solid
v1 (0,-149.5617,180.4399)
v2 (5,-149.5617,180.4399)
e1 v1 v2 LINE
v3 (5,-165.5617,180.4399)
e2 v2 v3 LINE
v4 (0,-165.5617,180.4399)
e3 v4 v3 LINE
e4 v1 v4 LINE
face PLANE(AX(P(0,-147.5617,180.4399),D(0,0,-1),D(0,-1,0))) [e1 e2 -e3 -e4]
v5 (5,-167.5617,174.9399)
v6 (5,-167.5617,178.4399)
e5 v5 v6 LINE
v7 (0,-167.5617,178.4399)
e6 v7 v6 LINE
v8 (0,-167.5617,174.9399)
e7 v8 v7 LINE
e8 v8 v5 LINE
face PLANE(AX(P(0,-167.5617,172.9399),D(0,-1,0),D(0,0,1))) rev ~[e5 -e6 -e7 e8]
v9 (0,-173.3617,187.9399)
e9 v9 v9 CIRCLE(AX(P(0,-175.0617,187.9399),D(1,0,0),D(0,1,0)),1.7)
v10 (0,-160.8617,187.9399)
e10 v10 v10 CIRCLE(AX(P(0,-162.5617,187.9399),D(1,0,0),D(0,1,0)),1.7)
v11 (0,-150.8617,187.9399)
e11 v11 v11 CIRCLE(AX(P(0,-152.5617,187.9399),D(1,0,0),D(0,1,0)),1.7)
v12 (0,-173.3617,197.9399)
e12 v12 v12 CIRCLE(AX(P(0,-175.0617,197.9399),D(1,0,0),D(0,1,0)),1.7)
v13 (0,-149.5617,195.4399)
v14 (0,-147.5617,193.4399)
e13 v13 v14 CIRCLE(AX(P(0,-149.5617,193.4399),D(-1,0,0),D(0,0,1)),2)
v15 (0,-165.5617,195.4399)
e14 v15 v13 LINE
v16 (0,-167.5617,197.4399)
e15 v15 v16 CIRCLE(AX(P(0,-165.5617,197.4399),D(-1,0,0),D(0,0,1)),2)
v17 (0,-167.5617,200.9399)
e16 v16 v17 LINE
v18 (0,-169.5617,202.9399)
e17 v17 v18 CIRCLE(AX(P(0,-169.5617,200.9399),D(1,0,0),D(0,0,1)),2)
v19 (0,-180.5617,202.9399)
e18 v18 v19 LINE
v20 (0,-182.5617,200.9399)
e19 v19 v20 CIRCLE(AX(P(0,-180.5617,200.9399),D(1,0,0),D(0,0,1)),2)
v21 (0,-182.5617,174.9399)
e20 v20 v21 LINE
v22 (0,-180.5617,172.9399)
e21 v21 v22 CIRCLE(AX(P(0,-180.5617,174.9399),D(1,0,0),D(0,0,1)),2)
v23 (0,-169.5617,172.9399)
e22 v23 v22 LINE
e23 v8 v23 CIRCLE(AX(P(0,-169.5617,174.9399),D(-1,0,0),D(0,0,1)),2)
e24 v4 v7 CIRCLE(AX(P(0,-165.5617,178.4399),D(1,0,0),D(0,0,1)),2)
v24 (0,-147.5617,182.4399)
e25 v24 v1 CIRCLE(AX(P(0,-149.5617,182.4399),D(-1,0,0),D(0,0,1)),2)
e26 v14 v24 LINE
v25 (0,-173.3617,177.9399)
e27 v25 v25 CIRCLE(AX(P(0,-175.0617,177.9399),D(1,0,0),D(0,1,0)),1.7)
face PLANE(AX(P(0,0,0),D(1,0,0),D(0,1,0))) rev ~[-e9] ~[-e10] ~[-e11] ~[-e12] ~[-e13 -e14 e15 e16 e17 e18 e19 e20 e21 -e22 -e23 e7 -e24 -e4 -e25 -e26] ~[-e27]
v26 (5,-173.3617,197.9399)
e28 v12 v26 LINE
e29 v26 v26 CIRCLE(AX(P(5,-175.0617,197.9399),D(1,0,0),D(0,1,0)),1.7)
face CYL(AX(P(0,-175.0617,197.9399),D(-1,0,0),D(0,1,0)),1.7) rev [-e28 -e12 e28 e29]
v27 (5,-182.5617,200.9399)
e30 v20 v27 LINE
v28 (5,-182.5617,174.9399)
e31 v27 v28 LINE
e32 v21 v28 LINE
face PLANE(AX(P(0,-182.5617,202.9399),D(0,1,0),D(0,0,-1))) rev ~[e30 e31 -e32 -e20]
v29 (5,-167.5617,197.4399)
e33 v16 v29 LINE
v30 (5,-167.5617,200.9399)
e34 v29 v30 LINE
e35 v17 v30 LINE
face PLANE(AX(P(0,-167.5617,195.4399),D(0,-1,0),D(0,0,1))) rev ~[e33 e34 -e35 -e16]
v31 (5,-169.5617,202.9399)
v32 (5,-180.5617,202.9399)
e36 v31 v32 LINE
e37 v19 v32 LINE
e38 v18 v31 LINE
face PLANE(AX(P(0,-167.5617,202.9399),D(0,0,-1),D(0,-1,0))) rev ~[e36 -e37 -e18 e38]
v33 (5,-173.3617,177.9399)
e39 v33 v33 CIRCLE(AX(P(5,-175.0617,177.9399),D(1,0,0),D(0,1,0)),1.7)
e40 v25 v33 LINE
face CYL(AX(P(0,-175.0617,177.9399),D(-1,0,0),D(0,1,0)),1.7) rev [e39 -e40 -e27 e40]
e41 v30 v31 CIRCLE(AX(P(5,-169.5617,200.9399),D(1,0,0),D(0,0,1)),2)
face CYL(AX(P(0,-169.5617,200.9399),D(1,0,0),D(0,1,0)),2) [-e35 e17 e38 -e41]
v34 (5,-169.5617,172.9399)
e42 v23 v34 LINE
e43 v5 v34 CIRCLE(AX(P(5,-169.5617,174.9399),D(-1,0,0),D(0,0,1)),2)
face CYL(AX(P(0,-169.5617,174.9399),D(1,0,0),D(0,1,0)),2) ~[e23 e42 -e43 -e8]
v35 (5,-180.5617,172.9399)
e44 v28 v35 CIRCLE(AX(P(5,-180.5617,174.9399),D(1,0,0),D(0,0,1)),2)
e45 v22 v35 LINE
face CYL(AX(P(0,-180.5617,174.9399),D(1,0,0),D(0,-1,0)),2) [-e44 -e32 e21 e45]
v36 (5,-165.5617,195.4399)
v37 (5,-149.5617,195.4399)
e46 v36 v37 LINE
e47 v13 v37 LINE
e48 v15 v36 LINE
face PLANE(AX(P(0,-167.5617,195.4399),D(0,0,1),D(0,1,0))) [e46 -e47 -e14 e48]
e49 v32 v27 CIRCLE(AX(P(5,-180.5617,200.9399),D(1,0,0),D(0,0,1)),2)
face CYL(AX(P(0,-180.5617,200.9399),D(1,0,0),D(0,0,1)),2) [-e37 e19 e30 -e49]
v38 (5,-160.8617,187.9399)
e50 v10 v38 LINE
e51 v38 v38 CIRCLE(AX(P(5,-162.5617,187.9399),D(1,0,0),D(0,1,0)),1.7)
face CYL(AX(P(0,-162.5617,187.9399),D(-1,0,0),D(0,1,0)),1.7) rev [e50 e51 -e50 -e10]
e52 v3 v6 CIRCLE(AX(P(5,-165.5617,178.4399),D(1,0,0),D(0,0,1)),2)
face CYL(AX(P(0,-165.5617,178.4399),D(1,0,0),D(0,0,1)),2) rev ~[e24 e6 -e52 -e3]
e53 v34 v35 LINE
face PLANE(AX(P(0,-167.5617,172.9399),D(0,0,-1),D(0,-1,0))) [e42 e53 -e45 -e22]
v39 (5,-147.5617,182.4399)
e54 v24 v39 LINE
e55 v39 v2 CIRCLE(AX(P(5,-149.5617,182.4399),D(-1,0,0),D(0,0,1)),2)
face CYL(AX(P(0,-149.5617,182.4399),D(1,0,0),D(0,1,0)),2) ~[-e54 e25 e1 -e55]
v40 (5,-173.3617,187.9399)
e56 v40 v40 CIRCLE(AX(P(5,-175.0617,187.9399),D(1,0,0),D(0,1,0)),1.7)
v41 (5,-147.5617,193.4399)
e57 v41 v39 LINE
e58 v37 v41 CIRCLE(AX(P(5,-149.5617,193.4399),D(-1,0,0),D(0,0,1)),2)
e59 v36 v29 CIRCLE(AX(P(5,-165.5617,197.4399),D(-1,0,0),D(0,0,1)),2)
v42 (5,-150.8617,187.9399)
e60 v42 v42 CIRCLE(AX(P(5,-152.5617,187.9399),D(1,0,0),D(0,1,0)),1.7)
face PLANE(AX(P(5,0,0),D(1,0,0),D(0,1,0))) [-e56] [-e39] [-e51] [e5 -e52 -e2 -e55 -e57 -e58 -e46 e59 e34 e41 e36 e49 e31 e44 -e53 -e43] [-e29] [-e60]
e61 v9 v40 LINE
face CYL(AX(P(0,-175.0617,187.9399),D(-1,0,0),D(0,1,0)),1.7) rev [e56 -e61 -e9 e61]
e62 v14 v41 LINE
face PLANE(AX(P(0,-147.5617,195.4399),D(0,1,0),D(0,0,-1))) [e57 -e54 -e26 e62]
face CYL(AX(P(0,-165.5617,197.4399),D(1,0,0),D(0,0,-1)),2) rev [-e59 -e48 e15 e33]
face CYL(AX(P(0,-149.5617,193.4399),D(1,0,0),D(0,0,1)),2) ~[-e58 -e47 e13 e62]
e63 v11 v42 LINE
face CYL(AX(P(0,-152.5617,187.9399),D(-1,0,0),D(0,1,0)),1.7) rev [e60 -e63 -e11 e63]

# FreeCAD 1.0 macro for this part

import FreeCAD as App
import Part
import Sketcher
from FreeCAD import Vector


def edges_at(feature, points):
    """Names of the edges that pass closest to the given points."""
    edges = feature.Shape.Edges
    near = lambda p: min(range(len(edges)), key=lambda i: edges[i].distToShape(Part.Vertex(*p))[0])
    return sorted({f"Edge{near(p) + 1}" for p in points})

doc = App.newDocument("Part")
body = doc.addObject("PartDesign::Body", "Body")

sketch1 = body.newObject("Sketcher::SketchObject", "Sketch")
sketch1.AttachmentSupport = (doc.getObject("YZ_Plane"), [""])
sketch1.MapMode = "FlatFace"
sketch1.addGeometry([
    Part.LineSegment(Vector(-147.6, 195.4, 0), Vector(-167.6, 195.4, 0)),
    Part.LineSegment(Vector(-167.6, 195.4, 0), Vector(-167.6, 202.9, 0)),
    Part.LineSegment(Vector(-167.6, 202.9, 0), Vector(-182.6, 202.9, 0)),
    Part.LineSegment(Vector(-182.6, 202.9, 0), Vector(-182.6, 172.9, 0)),
    Part.LineSegment(Vector(-182.6, 172.9, 0), Vector(-167.6, 172.9, 0)),
    Part.LineSegment(Vector(-167.6, 172.9, 0), Vector(-167.6, 180.4, 0)),
    Part.LineSegment(Vector(-167.6, 180.4, 0), Vector(-147.6, 180.4, 0)),
    Part.LineSegment(Vector(-147.6, 180.4, 0), Vector(-147.6, 195.4, 0)),
    Part.Circle(Vector(-162.6, 187.9, 0), Vector(0, 0, 1), 1.7),
    Part.Circle(Vector(-152.6, 187.9, 0), Vector(0, 0, 1), 1.7),
    Part.Circle(Vector(-175.1, 197.9, 0), Vector(0, 0, 1), 1.7),
    Part.Circle(Vector(-175.1, 177.9, 0), Vector(0, 0, 1), 1.7),
    Part.Circle(Vector(-175.1, 187.9, 0), Vector(0, 0, 1), 1.7),
], False)
sketch1.addConstraint([
    Sketcher.Constraint("Coincident", 0, 2, 1, 1),
    Sketcher.Constraint("Coincident", 1, 2, 2, 1),
    Sketcher.Constraint("Coincident", 2, 2, 3, 1),
    Sketcher.Constraint("Coincident", 3, 2, 4, 1),
    Sketcher.Constraint("Coincident", 4, 2, 5, 1),
    Sketcher.Constraint("Coincident", 5, 2, 6, 1),
    Sketcher.Constraint("Coincident", 6, 2, 7, 1),
    Sketcher.Constraint("Coincident", 7, 2, 0, 1),
    Sketcher.Constraint("Horizontal", 0),
    Sketcher.Constraint("Vertical", 1),
    Sketcher.Constraint("Horizontal", 2),
    Sketcher.Constraint("Vertical", 3),
    Sketcher.Constraint("Horizontal", 4),
    Sketcher.Constraint("Vertical", 5),
    Sketcher.Constraint("Horizontal", 6),
    Sketcher.Constraint("Vertical", 7),
    Sketcher.Constraint("Equal", 8, 9),
    Sketcher.Constraint("Equal", 9, 10),
    Sketcher.Constraint("Equal", 10, 11),
    Sketcher.Constraint("Equal", 11, 12),
    Sketcher.Constraint("Horizontal", 8, 3, 9, 3),
    Sketcher.Constraint("Horizontal", 9, 3, 12, 3),
    Sketcher.Constraint("Vertical", 10, 3, 11, 3),
    Sketcher.Constraint("Vertical", 11, 3, 12, 3),
    Sketcher.Constraint("Vertical", 1, 2, 4, 2),
    Sketcher.Constraint("Equal", 1, 5),
    Sketcher.Constraint("Equal", 4, 7),
    Sketcher.Constraint("Diameter", 8, 3.4),
    Sketcher.Constraint("DistanceX", 0, 2, 0, 1, 20.0),
    Sketcher.Constraint("DistanceY", 1, 1, 1, 2, 7.5),
    Sketcher.Constraint("DistanceX", 8, 3, 9, 3, 10.0),
    Sketcher.Constraint("DistanceY", 8, 3, 10, 3, 10.0),
    Sketcher.Constraint("DistanceY", 11, 3, 8, 3, 10.0),
    Sketcher.Constraint("DistanceX", 0, 2, 8, 3, 5.0),
    Sketcher.Constraint("DistanceY", 10, 3, 1, 2, 5.0),
    Sketcher.Constraint("DistanceX", 2, 2, 8, 3, 20.0),
    Sketcher.Constraint("DistanceX", 10, 3, 0, 2, 7.5),
    Sketcher.Constraint("DistanceY", -1, 1, 8, 3, 187.94),
    Sketcher.Constraint("DistanceX", 8, 3, -1, 1, 162.5617),
])
pad1 = body.newObject("PartDesign::Pad", "Pad")
pad1.Profile = sketch1
pad1.Length = 5
doc.recompute()

fillet = body.newObject("PartDesign::Fillet", "Fillet")
fillet.Base = (pad1, edges_at(pad1, [
    (2.5, -147.562, 195.44),
    (2.5, -167.562, 195.44),
    (2.5, -167.562, 202.94),
    (2.5, -182.562, 202.94),
    (2.5, -182.562, 172.94),
    (2.5, -167.562, 172.94),
    (2.5, -167.562, 180.44),
    (2.5, -147.562, 180.44),
]))
fillet.Radius = 2

doc.recompute()
